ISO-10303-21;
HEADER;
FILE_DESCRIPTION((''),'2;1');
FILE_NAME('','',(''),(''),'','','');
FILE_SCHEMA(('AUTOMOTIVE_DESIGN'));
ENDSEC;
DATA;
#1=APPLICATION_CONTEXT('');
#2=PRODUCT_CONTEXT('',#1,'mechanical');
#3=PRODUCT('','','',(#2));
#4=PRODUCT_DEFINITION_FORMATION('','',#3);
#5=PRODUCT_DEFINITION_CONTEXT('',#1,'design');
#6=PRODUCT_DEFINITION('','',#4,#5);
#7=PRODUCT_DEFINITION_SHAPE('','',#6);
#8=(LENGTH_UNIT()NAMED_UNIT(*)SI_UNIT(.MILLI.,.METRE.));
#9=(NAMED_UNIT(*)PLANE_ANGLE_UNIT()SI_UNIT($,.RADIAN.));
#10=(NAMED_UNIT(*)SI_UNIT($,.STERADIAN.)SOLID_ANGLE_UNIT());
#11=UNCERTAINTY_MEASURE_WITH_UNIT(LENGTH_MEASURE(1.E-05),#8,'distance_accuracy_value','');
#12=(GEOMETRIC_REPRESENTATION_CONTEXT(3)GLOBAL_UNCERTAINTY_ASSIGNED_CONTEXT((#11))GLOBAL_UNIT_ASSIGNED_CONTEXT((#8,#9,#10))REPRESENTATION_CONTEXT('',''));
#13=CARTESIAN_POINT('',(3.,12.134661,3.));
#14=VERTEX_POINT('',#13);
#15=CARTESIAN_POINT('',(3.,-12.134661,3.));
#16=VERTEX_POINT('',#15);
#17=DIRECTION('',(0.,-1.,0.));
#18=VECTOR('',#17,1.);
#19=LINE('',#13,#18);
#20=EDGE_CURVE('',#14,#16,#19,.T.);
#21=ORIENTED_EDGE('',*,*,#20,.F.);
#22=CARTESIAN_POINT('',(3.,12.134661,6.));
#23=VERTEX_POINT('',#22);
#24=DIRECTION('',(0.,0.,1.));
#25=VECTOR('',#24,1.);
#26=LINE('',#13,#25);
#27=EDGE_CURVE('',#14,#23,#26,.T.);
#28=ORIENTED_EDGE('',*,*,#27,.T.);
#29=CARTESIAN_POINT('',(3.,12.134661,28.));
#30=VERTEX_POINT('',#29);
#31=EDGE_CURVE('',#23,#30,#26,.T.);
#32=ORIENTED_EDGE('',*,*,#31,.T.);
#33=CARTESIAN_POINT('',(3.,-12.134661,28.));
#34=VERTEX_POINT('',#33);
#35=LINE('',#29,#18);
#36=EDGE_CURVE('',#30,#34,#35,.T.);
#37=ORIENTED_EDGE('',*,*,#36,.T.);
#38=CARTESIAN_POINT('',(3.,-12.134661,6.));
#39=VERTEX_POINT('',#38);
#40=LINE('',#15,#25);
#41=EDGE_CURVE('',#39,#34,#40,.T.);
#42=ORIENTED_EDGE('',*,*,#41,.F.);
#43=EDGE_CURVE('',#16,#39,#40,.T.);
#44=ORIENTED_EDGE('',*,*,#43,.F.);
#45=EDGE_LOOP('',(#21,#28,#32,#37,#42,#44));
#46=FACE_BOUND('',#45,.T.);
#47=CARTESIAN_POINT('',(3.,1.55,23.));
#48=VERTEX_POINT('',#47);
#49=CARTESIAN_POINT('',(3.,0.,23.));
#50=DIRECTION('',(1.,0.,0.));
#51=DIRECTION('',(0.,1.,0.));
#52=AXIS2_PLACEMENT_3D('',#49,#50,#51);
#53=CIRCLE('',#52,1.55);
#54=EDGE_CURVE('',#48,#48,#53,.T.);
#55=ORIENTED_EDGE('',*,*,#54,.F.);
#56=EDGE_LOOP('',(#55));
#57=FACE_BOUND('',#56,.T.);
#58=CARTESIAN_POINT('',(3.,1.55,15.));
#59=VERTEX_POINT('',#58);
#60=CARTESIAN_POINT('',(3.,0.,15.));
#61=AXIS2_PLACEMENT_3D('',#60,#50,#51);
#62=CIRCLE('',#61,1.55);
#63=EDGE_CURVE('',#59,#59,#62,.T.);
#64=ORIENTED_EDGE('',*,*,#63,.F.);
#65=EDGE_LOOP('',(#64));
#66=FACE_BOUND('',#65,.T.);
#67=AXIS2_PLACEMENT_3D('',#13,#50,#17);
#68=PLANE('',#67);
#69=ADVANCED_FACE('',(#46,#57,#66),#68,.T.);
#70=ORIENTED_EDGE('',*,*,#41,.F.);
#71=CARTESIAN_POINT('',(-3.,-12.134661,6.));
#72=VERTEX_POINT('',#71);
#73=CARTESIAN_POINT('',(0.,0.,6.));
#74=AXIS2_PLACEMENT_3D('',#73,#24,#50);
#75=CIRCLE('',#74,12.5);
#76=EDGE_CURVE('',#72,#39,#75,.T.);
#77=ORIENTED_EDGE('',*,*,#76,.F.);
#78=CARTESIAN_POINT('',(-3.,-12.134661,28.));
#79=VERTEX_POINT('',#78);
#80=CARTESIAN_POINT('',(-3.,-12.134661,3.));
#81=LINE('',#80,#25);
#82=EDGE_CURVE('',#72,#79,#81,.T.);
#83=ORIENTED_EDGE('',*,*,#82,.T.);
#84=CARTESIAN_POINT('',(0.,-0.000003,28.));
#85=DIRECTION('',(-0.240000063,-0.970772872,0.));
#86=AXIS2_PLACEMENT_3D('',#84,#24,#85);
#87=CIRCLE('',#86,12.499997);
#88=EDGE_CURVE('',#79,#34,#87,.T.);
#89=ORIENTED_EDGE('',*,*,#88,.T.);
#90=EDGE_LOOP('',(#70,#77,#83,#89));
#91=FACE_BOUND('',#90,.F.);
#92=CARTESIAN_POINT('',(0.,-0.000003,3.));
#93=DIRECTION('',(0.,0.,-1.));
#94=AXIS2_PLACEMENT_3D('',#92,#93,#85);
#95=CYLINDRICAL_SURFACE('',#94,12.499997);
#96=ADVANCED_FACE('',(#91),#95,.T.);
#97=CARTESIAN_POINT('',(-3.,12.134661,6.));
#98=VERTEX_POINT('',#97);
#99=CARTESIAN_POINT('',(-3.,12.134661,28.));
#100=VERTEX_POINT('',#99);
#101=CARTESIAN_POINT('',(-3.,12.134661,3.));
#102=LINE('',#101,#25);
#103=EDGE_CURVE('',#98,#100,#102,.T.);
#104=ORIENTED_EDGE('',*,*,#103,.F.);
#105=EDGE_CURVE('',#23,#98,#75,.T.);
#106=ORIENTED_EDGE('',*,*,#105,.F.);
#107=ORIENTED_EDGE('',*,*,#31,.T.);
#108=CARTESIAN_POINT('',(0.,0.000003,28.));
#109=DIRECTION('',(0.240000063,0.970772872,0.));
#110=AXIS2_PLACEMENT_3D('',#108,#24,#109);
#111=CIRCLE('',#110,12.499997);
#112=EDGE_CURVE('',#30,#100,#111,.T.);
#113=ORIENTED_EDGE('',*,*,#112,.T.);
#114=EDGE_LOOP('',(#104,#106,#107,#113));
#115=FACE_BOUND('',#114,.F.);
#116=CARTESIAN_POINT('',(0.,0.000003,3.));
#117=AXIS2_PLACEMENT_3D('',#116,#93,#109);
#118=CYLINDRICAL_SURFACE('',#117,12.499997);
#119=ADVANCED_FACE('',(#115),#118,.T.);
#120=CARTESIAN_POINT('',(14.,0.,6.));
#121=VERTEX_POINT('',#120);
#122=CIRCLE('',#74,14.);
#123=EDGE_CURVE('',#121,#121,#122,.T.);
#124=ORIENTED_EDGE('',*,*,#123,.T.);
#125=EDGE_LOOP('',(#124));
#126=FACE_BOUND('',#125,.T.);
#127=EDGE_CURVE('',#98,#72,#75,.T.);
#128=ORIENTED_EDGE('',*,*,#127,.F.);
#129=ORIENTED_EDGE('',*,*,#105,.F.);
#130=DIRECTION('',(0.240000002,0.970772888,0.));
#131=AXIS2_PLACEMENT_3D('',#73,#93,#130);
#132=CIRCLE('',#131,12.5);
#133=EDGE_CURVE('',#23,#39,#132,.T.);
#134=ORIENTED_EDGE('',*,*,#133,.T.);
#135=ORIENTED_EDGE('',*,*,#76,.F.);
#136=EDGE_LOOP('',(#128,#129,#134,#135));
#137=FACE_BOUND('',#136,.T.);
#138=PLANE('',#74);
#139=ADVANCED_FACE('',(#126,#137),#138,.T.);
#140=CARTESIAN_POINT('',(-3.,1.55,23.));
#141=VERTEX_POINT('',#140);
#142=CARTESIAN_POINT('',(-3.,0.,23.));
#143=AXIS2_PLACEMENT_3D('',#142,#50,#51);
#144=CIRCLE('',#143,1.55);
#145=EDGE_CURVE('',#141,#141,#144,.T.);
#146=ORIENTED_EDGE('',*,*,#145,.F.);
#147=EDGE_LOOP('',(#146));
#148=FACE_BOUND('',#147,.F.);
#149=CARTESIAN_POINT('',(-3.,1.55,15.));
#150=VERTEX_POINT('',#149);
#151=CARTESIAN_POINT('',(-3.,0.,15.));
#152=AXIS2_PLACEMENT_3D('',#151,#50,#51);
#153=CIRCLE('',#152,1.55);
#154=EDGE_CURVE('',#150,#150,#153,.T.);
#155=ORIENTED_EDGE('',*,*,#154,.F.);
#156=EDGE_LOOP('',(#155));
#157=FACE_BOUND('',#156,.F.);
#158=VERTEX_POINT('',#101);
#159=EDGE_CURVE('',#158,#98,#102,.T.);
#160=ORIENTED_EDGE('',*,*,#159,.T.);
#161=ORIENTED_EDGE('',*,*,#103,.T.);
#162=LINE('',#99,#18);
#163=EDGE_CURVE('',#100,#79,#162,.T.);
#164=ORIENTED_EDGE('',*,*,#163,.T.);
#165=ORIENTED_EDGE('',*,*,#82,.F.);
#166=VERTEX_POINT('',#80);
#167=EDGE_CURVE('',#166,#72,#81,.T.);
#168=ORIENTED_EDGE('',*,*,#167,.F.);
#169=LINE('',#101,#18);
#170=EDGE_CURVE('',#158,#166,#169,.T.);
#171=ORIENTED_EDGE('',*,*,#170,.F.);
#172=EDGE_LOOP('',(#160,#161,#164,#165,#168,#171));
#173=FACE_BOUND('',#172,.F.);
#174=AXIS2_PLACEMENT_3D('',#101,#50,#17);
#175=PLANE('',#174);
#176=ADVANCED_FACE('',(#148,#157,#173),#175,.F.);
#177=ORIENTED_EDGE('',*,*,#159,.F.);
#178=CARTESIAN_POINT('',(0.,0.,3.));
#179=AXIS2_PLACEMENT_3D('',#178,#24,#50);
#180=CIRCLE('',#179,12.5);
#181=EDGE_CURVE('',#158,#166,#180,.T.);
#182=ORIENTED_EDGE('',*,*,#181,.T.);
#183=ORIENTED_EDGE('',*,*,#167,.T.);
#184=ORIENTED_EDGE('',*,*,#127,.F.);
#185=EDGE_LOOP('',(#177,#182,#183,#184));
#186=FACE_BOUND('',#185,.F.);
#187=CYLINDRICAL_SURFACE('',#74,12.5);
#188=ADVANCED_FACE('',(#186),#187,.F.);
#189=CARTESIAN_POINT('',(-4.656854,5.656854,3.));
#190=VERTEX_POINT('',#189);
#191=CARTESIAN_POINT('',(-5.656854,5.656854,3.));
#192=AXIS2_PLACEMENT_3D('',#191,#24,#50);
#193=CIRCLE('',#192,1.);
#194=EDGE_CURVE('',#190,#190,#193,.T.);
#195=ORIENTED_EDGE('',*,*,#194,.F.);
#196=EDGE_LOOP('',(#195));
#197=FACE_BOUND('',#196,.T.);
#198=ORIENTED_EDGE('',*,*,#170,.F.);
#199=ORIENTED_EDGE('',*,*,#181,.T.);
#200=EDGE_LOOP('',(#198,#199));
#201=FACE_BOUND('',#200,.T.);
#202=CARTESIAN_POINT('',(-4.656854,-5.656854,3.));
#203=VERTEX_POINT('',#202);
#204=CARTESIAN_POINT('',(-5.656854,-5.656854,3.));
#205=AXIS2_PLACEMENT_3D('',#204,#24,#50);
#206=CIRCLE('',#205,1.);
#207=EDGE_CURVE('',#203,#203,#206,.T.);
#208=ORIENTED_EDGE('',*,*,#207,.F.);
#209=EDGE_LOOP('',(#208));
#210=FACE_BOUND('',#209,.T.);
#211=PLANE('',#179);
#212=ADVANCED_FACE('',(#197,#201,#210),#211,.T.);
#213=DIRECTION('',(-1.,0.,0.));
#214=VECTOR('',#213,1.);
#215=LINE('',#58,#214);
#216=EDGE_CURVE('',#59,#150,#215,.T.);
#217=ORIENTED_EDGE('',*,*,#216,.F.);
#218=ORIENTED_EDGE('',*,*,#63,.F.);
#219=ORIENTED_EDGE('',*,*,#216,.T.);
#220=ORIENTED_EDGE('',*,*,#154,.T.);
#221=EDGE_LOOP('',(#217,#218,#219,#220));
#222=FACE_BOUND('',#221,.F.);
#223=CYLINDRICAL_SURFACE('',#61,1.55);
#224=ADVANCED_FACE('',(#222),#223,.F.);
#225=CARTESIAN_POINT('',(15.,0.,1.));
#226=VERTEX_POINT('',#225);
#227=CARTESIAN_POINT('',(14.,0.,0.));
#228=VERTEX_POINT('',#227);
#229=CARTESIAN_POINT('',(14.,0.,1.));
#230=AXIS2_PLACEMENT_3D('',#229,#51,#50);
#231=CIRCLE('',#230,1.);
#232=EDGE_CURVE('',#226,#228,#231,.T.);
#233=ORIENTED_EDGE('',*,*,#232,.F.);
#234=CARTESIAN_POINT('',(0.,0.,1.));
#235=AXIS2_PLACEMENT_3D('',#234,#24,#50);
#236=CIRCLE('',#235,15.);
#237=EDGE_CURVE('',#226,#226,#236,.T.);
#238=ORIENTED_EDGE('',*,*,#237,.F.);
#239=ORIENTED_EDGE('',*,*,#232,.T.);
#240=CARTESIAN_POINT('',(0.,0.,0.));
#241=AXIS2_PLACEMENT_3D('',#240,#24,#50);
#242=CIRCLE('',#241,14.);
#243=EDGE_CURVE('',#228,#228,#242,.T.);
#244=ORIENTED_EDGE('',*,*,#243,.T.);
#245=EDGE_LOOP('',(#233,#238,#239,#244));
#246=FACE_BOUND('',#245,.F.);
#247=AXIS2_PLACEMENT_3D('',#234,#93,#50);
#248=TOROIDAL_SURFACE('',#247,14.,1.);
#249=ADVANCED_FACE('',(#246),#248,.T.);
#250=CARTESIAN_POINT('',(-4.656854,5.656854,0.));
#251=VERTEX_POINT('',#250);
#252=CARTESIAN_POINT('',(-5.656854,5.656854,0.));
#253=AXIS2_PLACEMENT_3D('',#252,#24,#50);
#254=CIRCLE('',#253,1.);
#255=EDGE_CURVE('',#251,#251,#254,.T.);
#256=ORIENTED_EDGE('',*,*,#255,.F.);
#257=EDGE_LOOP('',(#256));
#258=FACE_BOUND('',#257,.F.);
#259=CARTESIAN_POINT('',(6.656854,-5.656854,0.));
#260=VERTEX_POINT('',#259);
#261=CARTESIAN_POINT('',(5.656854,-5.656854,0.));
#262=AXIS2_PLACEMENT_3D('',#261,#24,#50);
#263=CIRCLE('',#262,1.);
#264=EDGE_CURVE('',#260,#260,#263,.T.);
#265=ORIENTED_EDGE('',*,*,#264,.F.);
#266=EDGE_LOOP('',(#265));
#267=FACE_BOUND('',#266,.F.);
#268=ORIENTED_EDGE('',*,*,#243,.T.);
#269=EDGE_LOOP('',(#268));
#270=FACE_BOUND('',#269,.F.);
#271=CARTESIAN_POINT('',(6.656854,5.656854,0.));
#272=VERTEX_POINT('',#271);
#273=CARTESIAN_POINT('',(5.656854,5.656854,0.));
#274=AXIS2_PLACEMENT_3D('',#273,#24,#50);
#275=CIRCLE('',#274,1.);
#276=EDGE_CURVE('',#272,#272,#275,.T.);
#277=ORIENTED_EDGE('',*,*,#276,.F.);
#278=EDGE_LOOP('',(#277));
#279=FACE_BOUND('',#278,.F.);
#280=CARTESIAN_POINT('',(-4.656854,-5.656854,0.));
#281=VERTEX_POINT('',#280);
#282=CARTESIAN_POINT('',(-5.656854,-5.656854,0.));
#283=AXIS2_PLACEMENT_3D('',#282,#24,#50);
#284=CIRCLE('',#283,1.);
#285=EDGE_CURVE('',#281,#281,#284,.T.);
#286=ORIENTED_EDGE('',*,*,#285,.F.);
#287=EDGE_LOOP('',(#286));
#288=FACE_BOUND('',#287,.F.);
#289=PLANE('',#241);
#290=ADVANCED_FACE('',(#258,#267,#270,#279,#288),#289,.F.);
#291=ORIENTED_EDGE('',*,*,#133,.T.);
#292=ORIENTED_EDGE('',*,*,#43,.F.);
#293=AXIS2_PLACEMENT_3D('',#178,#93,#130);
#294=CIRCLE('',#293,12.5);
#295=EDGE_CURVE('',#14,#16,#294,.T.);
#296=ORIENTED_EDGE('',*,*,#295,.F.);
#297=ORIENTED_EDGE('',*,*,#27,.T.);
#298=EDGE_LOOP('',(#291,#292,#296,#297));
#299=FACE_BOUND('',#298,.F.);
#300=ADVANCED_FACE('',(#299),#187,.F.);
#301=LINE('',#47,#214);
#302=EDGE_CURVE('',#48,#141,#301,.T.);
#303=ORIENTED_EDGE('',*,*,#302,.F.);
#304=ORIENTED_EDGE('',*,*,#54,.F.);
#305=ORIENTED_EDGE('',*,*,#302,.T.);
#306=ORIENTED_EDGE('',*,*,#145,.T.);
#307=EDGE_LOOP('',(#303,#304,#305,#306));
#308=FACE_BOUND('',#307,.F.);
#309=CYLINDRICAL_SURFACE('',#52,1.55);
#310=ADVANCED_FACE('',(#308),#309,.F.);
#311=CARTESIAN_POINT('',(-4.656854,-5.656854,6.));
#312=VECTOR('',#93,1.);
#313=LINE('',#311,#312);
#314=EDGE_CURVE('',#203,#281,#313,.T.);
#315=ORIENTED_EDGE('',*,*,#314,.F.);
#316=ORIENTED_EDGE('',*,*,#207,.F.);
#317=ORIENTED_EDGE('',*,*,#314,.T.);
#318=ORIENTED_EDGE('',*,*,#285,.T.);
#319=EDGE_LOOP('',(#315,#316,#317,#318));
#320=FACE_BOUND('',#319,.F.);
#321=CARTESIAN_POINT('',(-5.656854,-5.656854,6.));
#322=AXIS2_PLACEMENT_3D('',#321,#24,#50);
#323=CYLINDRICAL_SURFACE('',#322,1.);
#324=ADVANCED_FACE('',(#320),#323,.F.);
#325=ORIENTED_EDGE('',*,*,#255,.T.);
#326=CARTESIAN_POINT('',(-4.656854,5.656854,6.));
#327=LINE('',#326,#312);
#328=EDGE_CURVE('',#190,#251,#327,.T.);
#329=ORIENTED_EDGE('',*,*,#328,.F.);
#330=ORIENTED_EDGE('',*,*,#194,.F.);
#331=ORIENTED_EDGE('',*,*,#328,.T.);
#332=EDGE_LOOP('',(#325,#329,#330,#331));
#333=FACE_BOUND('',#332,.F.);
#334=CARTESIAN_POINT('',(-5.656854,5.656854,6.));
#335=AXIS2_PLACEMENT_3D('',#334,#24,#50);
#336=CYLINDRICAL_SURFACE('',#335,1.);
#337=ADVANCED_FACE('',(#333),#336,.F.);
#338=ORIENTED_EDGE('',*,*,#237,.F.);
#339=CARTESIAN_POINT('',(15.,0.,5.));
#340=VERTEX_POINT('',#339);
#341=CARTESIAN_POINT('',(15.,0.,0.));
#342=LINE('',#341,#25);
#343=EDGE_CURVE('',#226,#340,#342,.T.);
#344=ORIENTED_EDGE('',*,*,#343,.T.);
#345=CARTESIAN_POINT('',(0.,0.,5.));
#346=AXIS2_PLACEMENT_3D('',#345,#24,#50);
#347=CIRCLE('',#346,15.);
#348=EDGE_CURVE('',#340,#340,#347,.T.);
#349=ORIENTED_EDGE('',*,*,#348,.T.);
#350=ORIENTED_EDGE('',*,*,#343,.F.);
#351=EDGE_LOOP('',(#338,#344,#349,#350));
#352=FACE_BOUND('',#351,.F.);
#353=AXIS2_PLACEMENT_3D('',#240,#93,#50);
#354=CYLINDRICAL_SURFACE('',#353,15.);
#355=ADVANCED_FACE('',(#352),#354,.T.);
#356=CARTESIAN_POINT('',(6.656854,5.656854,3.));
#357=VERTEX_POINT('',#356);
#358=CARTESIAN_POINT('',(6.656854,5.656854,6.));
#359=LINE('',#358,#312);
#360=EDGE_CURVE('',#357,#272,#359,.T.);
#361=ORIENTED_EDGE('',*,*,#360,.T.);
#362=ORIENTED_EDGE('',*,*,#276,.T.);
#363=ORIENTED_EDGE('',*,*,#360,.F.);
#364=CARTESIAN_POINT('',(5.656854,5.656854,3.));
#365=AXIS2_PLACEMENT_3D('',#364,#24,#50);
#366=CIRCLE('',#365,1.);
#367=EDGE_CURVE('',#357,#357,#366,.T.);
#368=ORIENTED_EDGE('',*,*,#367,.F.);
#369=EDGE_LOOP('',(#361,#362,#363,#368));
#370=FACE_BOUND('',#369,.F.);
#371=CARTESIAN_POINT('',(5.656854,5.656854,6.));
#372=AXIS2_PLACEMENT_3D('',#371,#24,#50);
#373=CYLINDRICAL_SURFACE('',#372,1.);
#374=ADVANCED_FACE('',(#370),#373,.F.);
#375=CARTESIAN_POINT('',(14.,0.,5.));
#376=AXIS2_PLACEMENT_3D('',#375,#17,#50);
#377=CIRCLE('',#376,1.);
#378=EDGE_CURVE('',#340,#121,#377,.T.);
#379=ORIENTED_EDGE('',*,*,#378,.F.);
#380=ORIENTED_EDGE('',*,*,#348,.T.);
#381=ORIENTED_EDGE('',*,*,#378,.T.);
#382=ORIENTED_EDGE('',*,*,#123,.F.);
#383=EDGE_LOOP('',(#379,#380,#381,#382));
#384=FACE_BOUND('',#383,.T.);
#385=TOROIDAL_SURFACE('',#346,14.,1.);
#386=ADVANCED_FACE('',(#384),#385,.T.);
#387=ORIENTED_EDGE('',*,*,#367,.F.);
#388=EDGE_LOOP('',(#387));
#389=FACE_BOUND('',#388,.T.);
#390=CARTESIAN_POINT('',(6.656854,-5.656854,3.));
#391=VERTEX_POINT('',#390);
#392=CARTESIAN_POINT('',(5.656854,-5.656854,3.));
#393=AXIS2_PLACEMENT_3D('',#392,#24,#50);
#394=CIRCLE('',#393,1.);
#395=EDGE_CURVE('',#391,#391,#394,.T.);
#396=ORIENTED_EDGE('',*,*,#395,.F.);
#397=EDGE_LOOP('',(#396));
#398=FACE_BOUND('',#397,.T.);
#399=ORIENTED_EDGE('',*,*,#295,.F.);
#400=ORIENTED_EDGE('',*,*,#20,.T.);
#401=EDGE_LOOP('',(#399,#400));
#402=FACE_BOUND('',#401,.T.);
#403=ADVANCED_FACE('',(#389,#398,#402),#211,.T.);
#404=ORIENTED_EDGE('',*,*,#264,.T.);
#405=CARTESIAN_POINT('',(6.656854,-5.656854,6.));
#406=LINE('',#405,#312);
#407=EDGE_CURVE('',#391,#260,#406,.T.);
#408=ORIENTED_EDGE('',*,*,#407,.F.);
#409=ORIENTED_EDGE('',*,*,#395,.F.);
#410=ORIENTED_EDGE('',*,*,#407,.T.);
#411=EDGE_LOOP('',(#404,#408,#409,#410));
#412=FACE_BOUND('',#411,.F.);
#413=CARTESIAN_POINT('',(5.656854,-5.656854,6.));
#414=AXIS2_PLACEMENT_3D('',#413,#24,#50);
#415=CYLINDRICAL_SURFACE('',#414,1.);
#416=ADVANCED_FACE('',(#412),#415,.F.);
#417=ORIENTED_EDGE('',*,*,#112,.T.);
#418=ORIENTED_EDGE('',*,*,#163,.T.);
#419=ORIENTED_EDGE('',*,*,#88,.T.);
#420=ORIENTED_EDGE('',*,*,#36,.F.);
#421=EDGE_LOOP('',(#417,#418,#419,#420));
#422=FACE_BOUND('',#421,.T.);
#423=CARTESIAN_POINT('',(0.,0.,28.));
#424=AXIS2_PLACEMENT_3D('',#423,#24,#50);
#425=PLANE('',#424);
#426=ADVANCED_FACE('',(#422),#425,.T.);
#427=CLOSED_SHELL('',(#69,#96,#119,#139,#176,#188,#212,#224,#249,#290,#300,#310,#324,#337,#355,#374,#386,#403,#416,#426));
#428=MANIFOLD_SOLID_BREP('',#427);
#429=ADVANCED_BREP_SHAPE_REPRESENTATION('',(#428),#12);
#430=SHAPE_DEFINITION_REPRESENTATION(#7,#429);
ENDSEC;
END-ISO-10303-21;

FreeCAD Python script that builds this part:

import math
import FreeCAD as App
import Part
import Sketcher
from FreeCAD import Vector
Q = App.Units.Quantity


def edges_at(feature, points):
    """Names of the edges that pass closest to the given points."""
    edges = feature.Shape.Edges
    near = lambda p: min(range(len(edges)), key=lambda i: edges[i].distToShape(Part.Vertex(*p))[0])
    return sorted({f"Edge{near(p) + 1}" for p in points})

doc = App.newDocument("Part")
body = doc.addObject("PartDesign::Body", "Body")

sketch1 = body.newObject("Sketcher::SketchObject", "Sketch")
sketch1.AttachmentSupport = (doc.getObject("XY_Plane"), [""])
sketch1.MapMode = "FlatFace"
sketch1.addGeometry(Part.Circle(Vector(0, 0, 0), Vector(0, 0, 1), 15), False)
sketch1.addConstraint([
    Sketcher.Constraint("Coincident", 0, 3, -1, 1),
    Sketcher.Constraint("Diameter", 0, Q("30 mm")),
])
pad1 = body.newObject("PartDesign::Pad", "Pad")
pad1.Profile = sketch1
pad1.Length = 6
doc.recompute()

fillet = body.newObject("PartDesign::Fillet", "Fillet")
fillet.Base = (pad1, edges_at(pad1, [(-15, 0, 0)]))
fillet.Radius = 1
doc.recompute()

fillet2 = body.newObject("PartDesign::Fillet", "Fillet001")
fillet2.Base = (fillet, edges_at(fillet, [(-15, 0, 6)]))
fillet2.Radius = 1

sketch2 = body.newObject("Sketcher::SketchObject", "Sketch001")
sketch2.AttachmentSupport = (doc.getObject("XY_Plane"), [""])
sketch2.MapMode = "FlatFace"
sketch2.AttachmentOffset = App.Placement(Vector(0, 0, 6), App.Rotation())
sketch2.addGeometry(Part.Circle(Vector(0, 0, 0), Vector(0, 0, 1), 12), False)
sketch2.addConstraint([
    Sketcher.Constraint("Coincident", 0, 3, -1, 1),
    Sketcher.Constraint("Diameter", 0, Q("25 mm")),
])
pocket1 = body.newObject("PartDesign::Pocket", "Pocket")
pocket1.Profile = sketch2
pocket1.Length = 3

sketch3 = body.newObject("Sketcher::SketchObject", "Sketch002")
sketch3.AttachmentSupport = (doc.getObject("XY_Plane"), [""])
sketch3.MapMode = "FlatFace"
sketch3.AttachmentOffset = App.Placement(Vector(0, 0, 3), App.Rotation())
sketch3.addGeometry([
    Part.LineSegment(Vector(-3, 12, 0), Vector(-3, -12, 0)),
    Part.ArcOfCircle(Part.Circle(Vector(0, 0, 0), Vector(0, 0, 1), 12), math.radians(-104), math.radians(-76)),
    Part.LineSegment(Vector(3, -12, 0), Vector(3, 12, 0)),
    Part.ArcOfCircle(Part.Circle(Vector(0, 0, 0), Vector(0, 0, 1), 12), math.radians(76), math.radians(104)),
], False)
sketch3.addConstraint([
    Sketcher.Constraint("Coincident", 0, 2, 1, 1),
    Sketcher.Constraint("Coincident", 1, 2, 2, 1),
    Sketcher.Constraint("Coincident", 2, 2, 3, 1),
    Sketcher.Constraint("Coincident", 3, 2, 0, 1),
    Sketcher.Constraint("Vertical", 0),
    Sketcher.Constraint("Vertical", 2),
    Sketcher.Constraint("Coincident", 1, 3, -1, 1),
    Sketcher.Constraint("Coincident", 3, 3, -1, 1),
    Sketcher.Constraint("Equal", 1, 3),
    Sketcher.Constraint("Horizontal", 0, 2, 1, 2),
    Sketcher.Constraint("DistanceX", 0, 2, -1, 1, Q("3 mm")),
    Sketcher.Constraint("Radius", 1, Q("12.499997 mm")),
])
pad2 = body.newObject("PartDesign::Pad", "Pad001")
pad2.Profile = sketch3
pad2.Length = 25

sketch4 = body.newObject("Sketcher::SketchObject", "Sketch003")
sketch4.AttachmentSupport = (doc.getObject("YZ_Plane"), [""])
sketch4.MapMode = "FlatFace"
sketch4.AttachmentOffset = App.Placement(Vector(0, 0, 3), App.Rotation())
sketch4.addGeometry([
    Part.Circle(Vector(0, 23, 0), Vector(0, 0, 1), 1.6),
    Part.Circle(Vector(0, 15, 0), Vector(0, 0, 1), 1.6),
], False)
sketch4.addConstraint([
    Sketcher.Constraint("Equal", 0, 1),
    Sketcher.Constraint("PointOnObject", 0, 3, -2),
    Sketcher.Constraint("PointOnObject", 1, 3, -2),
    Sketcher.Constraint("Diameter", 0, Q("3.1 mm")),
    Sketcher.Constraint("DistanceY", -1, 1, 0, 3, Q("23 mm")),
    Sketcher.Constraint("DistanceY", -1, 1, 1, 3, Q("15 mm")),
])
pocket2 = body.newObject("PartDesign::Pocket", "Pocket001")
pocket2.Profile = sketch4
pocket2.Length = 20

sketch5 = body.newObject("Sketcher::SketchObject", "Sketch004")
sketch5.AttachmentSupport = (doc.getObject("XY_Plane"), [""])
sketch5.MapMode = "FlatFace"
sketch5.AttachmentOffset = App.Placement(Vector(0, 0, 6), App.Rotation())
sketch5.addGeometry([
    Part.Circle(Vector(-5.7, 5.7, 0), Vector(0, 0, 1), 1),
    Part.Circle(Vector(5.7, 5.7, 0), Vector(0, 0, 1), 1),
    Part.Circle(Vector(-5.7, -5.7, 0), Vector(0, 0, 1), 1),
    Part.Circle(Vector(5.7, -5.7, 0), Vector(0, 0, 1), 1),
], False)
sketch5.addConstraint([
    Sketcher.Constraint("Equal", 0, 1),
    Sketcher.Constraint("Equal", 1, 2),
    Sketcher.Constraint("Equal", 2, 3),
    Sketcher.Constraint("Symmetric", 1, 3, 2, 3, -1, 1),
    Sketcher.Constraint("Symmetric", 0, 3, 3, 3, -1, 1),
    Sketcher.Constraint("Symmetric", 0, 3, 1, 3, -2),
    Sketcher.Constraint("Diameter", 0, Q("2 mm")),
    Sketcher.Constraint("DistanceX", 0, 3, -1, 1, Q("5.656854 mm")),
    Sketcher.Constraint("DistanceY", -1, 1, 0, 3, Q("5.656854 mm")),
])
pocket3 = body.newObject("PartDesign::Pocket", "Pocket002")
pocket3.Profile = sketch5
pocket3.Length = 6

doc.recompute()
